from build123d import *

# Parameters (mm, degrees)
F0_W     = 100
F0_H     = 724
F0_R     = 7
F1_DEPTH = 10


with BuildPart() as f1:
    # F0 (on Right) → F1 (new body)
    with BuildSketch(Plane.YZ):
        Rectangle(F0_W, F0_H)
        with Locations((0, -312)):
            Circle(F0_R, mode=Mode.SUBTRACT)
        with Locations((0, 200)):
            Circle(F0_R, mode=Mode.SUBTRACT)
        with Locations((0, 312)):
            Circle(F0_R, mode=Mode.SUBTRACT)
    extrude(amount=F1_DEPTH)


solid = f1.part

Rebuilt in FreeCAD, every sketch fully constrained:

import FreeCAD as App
import Part
import Sketcher
Q = App.Units.Quantity


def add_polygon(sketch, points):
    """Adds a closed chain of lines whose ends are joined by coincident constraints."""
    first, n = sketch.GeometryCount, len(points)
    for a, b in zip(points, points[1:] + points[:1]):
        sketch.addGeometry(Part.LineSegment(App.Vector(*a, 0), App.Vector(*b, 0)), False)
    for i in range(n):
        sketch.addConstraint(Sketcher.Constraint("Coincident", first + i, 2, first + (i + 1) % n, 1))

doc = App.newDocument("Part")
body = doc.addObject("PartDesign::Body", "Body")

# Sketch on YZ plane
sketch1 = doc.addObject("Sketcher::SketchObject", "Sketch")
body.addObject(sketch1)
sketch1.AttachmentSupport = (doc.YZ_Plane, [""])
sketch1.MapMode = "FlatFace"
add_polygon(sketch1, [(-50, 362), (-50, -362), (50, -362), (50, 362)])  # lines 0-3
sketch1.addGeometry(Part.Circle(App.Vector(0, -312, 0), App.Vector(0, 0, 1), 7), False)  # 4
sketch1.addGeometry(Part.Circle(App.Vector(0, 200, 0), App.Vector(0, 0, 1), 7), False)  # 5
sketch1.addGeometry(Part.Circle(App.Vector(0, 312, 0), App.Vector(0, 0, 1), 7), False)  # 6
sketch1.addConstraint([
    Sketcher.Constraint("Vertical", 0),
    Sketcher.Constraint("Horizontal", 1),
    Sketcher.Constraint("Vertical", 2),
    Sketcher.Constraint("Horizontal", 3),
    Sketcher.Constraint("Equal", 4, 5),
    Sketcher.Constraint("Equal", 5, 6),
    Sketcher.Constraint("Symmetric", 4, 3, 6, 3, -1, 1),
    Sketcher.Constraint("Symmetric", 0, 2, 2, 2, -1, 1),
    Sketcher.Constraint("PointOnObject", 4, 3, -2),
    Sketcher.Constraint("PointOnObject", 5, 3, -2),
    Sketcher.Constraint("Diameter", 4, Q("14 mm")),
    Sketcher.Constraint("DistanceX", 1, 1, 1, 2, Q("100 mm")),
    Sketcher.Constraint("DistanceY", 0, 2, 0, 1, Q("724 mm")),
    Sketcher.Constraint("DistanceY", 4, 3, -1, 1, Q("312 mm")),
    Sketcher.Constraint("DistanceY", -1, 1, 5, 3, Q("200 mm")),
])
pad1 = doc.addObject("PartDesign::Pad", "Pad")
body.addObject(pad1)
pad1.Profile = sketch1
pad1.Length = 10

doc.recompute()
